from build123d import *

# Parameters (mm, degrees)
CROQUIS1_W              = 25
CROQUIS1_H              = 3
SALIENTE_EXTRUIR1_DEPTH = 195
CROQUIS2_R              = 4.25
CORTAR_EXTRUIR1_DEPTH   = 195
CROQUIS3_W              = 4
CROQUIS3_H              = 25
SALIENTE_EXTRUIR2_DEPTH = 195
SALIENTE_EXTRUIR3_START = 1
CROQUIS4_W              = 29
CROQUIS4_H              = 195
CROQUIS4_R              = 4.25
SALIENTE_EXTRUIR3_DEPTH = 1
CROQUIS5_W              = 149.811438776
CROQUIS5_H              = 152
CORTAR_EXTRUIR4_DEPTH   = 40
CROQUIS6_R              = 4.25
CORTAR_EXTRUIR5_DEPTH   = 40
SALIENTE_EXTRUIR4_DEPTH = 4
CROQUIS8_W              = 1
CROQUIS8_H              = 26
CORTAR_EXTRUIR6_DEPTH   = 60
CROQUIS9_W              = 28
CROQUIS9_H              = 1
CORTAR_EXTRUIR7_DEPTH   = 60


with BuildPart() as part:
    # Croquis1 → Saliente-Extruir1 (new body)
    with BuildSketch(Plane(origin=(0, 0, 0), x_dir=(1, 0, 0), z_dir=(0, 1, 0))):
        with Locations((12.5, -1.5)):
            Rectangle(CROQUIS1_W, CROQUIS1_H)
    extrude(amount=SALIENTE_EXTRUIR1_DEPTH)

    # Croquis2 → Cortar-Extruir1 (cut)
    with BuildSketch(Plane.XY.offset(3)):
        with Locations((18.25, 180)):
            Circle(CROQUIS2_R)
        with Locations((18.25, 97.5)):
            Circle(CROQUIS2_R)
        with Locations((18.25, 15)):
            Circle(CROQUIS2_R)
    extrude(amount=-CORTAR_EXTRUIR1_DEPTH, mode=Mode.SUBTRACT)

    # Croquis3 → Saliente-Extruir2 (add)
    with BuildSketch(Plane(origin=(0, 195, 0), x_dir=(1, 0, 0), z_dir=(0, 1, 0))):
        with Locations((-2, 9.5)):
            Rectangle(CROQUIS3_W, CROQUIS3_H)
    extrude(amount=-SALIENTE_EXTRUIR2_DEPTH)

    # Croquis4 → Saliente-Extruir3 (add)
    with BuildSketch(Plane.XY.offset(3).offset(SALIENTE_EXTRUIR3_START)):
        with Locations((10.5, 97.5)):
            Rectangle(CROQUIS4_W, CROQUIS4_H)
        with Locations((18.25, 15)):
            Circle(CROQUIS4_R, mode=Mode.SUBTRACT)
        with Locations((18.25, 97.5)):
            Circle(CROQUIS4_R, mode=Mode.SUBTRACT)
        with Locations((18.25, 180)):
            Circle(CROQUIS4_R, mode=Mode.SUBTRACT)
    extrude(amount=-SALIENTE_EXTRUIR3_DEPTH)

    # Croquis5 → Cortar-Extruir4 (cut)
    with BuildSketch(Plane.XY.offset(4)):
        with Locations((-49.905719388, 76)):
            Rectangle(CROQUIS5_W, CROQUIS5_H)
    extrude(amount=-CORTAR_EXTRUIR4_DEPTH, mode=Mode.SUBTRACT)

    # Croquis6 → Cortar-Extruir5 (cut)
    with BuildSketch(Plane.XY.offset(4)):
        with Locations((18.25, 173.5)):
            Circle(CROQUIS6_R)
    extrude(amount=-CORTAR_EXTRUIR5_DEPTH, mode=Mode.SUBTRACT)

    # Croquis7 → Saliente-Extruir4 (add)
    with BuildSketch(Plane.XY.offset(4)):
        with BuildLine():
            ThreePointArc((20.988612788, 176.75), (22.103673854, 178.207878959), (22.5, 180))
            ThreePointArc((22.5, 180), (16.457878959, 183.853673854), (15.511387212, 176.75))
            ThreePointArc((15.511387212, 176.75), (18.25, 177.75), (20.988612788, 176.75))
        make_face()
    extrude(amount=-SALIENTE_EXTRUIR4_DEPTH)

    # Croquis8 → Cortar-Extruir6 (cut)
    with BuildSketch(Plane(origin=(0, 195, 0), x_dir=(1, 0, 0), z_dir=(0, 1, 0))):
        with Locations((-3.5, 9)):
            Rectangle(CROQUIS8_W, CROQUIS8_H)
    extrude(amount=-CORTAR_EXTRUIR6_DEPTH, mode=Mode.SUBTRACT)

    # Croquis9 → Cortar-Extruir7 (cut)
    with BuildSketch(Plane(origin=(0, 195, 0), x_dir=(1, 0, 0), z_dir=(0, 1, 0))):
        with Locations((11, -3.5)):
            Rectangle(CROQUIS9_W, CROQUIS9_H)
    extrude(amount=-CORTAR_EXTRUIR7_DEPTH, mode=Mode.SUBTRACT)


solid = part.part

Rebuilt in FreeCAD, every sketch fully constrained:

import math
import FreeCAD as App
import Part
import Sketcher
Q = App.Units.Quantity


def add_polygon(sketch, points):
    """Adds a closed chain of lines whose ends are joined by coincident constraints."""
    first, n = sketch.GeometryCount, len(points)
    for a, b in zip(points, points[1:] + points[:1]):
        sketch.addGeometry(Part.LineSegment(App.Vector(*a, 0), App.Vector(*b, 0)), False)
    for i in range(n):
        sketch.addConstraint(Sketcher.Constraint("Coincident", first + i, 2, first + (i + 1) % n, 1))

doc = App.newDocument("Part")
body = doc.addObject("PartDesign::Body", "Body")

sketch1 = body.newObject("Sketcher::SketchObject", "Sketch")
sketch1.AttachmentSupport = (doc.getObject("XZ_Plane"), [""])
sketch1.MapMode = "FlatFace"
add_polygon(sketch1, [(0, 0), (0, 3), (25, 3), (25, 0)])
sketch1.addConstraint([
    Sketcher.Constraint("Vertical", 0),
    Sketcher.Constraint("Horizontal", 1),
    Sketcher.Constraint("Vertical", 2),
    Sketcher.Constraint("Horizontal", 3),
    Sketcher.Constraint("Coincident", 3, 2, -1, 1),
    Sketcher.Constraint("DistanceX", 1, 1, 1, 2, Q("25 mm")),
    Sketcher.Constraint("DistanceY", 0, 1, 0, 2, Q("3 mm")),
])
pad1 = body.newObject("PartDesign::Pad", "Pad")
pad1.Profile = sketch1
pad1.Length = 195
pad1.Reversed = True

sketch2 = body.newObject("Sketcher::SketchObject", "Sketch001")
sketch2.AttachmentSupport = (doc.getObject("XY_Plane"), [""])
sketch2.MapMode = "FlatFace"
sketch2.AttachmentOffset = App.Placement(App.Vector(0, 0, 3), App.Rotation())
sketch2.addGeometry([
    Part.Circle(App.Vector(18.2, 180, 0), App.Vector(0, 0, 1), 4.2),
    Part.Circle(App.Vector(18.2, 97.5, 0), App.Vector(0, 0, 1), 4.2),
    Part.Circle(App.Vector(18.2, 15, 0), App.Vector(0, 0, 1), 4.2),
], False)
sketch2.addConstraint([
    Sketcher.Constraint("Equal", 0, 1),
    Sketcher.Constraint("Equal", 1, 2),
    Sketcher.Constraint("Vertical", 0, 3, 1, 3),
    Sketcher.Constraint("Vertical", 1, 3, 2, 3),
    Sketcher.Constraint("Diameter", 0, Q("8.5 mm")),
    Sketcher.Constraint("DistanceY", -1, 1, 0, 3, Q("180 mm")),
    Sketcher.Constraint("DistanceY", -1, 1, 2, 3, Q("15 mm")),
    Sketcher.Constraint("DistanceY", -1, 1, 1, 3, Q("97.5 mm")),
    Sketcher.Constraint("DistanceX", -1, 1, 0, 3, Q("18.25 mm")),
])
pocket1 = body.newObject("PartDesign::Pocket", "Pocket")
pocket1.Profile = sketch2
pocket1.Length = 195

sketch3 = body.newObject("Sketcher::SketchObject", "Sketch002")
sketch3.AttachmentSupport = (doc.getObject("XZ_Plane"), [""])
sketch3.MapMode = "FlatFace"
sketch3.AttachmentOffset = App.Placement(App.Vector(0, 0, -195), App.Rotation())
add_polygon(sketch3, [(-4, -22), (-4, 3), (0, 3), (0, -22)])
sketch3.addConstraint([
    Sketcher.Constraint("Vertical", 0),
    Sketcher.Constraint("Horizontal", 1),
    Sketcher.Constraint("Vertical", 2),
    Sketcher.Constraint("Horizontal", 3),
    Sketcher.Constraint("PointOnObject", 1, 2, -2),
    Sketcher.Constraint("DistanceX", 1, 1, 1, 2, Q("4 mm")),
    Sketcher.Constraint("DistanceY", 0, 1, 0, 2, Q("25 mm")),
    Sketcher.Constraint("DistanceY", -1, 1, 0, 2, Q("3 mm")),
])
pad2 = body.newObject("PartDesign::Pad", "Pad001")
pad2.Profile = sketch3
pad2.Length = 195

sketch4 = body.newObject("Sketcher::SketchObject", "Sketch003")
sketch4.AttachmentSupport = (doc.getObject("XY_Plane"), [""])
sketch4.MapMode = "FlatFace"
sketch4.AttachmentOffset = App.Placement(App.Vector(0, 0, 4), App.Rotation())
add_polygon(sketch4, [(-4, 195), (-4, 0), (25, 0), (25, 195)])
sketch4.addGeometry(Part.Circle(App.Vector(18.2, 15, 0), App.Vector(0, 0, 1), 4.2), False)
sketch4.addGeometry(Part.Circle(App.Vector(18.2, 97.5, 0), App.Vector(0, 0, 1), 4.2), False)
sketch4.addGeometry(Part.Circle(App.Vector(18.2, 180, 0), App.Vector(0, 0, 1), 4.2), False)
sketch4.addConstraint([
    Sketcher.Constraint("Vertical", 0),
    Sketcher.Constraint("Horizontal", 1),
    Sketcher.Constraint("Vertical", 2),
    Sketcher.Constraint("Horizontal", 3),
    Sketcher.Constraint("Equal", 4, 5),
    Sketcher.Constraint("Equal", 5, 6),
    Sketcher.Constraint("PointOnObject", 0, 2, -1),
    Sketcher.Constraint("Vertical", 4, 3, 5, 3),
    Sketcher.Constraint("Vertical", 5, 3, 6, 3),
    Sketcher.Constraint("Diameter", 4, Q("8.5 mm")),
    Sketcher.Constraint("DistanceX", 1, 1, 1, 2, Q("29 mm")),
    Sketcher.Constraint("DistanceY", 0, 2, 0, 1, Q("195 mm")),
    Sketcher.Constraint("DistanceY", -1, 1, 4, 3, Q("15 mm")),
    Sketcher.Constraint("DistanceY", -1, 1, 6, 3, Q("180 mm")),
    Sketcher.Constraint("DistanceX", 0, 2, -1, 1, Q("4 mm")),
    Sketcher.Constraint("DistanceY", -1, 1, 5, 3, Q("97.5 mm")),
    Sketcher.Constraint("DistanceX", -1, 1, 4, 3, Q("18.25 mm")),
])
pad3 = body.newObject("PartDesign::Pad", "Pad002")
pad3.Profile = sketch4
pad3.Length = 1
pad3.Reversed = True

sketch5 = body.newObject("Sketcher::SketchObject", "Sketch004")
sketch5.AttachmentSupport = (doc.getObject("XY_Plane"), [""])
sketch5.MapMode = "FlatFace"
sketch5.AttachmentOffset = App.Placement(App.Vector(0, 0, 4), App.Rotation())
add_polygon(sketch5, [(-125, 152), (-125, 0), (25, 0), (25, 152)])
sketch5.addConstraint([
    Sketcher.Constraint("Vertical", 0),
    Sketcher.Constraint("Horizontal", 1),
    Sketcher.Constraint("Vertical", 2),
    Sketcher.Constraint("Horizontal", 3),
    Sketcher.Constraint("PointOnObject", 0, 2, -1),
    Sketcher.Constraint("DistanceY", 0, 2, 0, 1, Q("152 mm")),
    Sketcher.Constraint("DistanceX", -1, 1, 1, 2, Q("25 mm")),
    Sketcher.Constraint("DistanceX", 1, 1, 1, 2, Q("149.811439 mm")),
])
pocket2 = body.newObject("PartDesign::Pocket", "Pocket001")
pocket2.Profile = sketch5
pocket2.Length = 40

sketch6 = body.newObject("Sketcher::SketchObject", "Sketch005")
sketch6.AttachmentSupport = (doc.getObject("XY_Plane"), [""])
sketch6.MapMode = "FlatFace"
sketch6.AttachmentOffset = App.Placement(App.Vector(0, 0, 4), App.Rotation())
sketch6.addGeometry(Part.Circle(App.Vector(18.2, 173.5, 0), App.Vector(0, 0, 1), 4.2), False)
sketch6.addConstraint([
    Sketcher.Constraint("Diameter", 0, Q("8.5 mm")),
    Sketcher.Constraint("DistanceY", -1, 1, 0, 3, Q("173.5 mm")),
    Sketcher.Constraint("DistanceX", -1, 1, 0, 3, Q("18.25 mm")),
])
pocket3 = body.newObject("PartDesign::Pocket", "Pocket002")
pocket3.Profile = sketch6
pocket3.Length = 40

sketch7 = body.newObject("Sketcher::SketchObject", "Sketch006")
sketch7.AttachmentSupport = (doc.getObject("XY_Plane"), [""])
sketch7.MapMode = "FlatFace"
sketch7.AttachmentOffset = App.Placement(App.Vector(0, 0, 4), App.Rotation())
sketch7.addGeometry([
    Part.ArcOfCircle(Part.Circle(App.Vector(18.2, 180, 0), App.Vector(0, 0, 1), 4.3), math.radians(-50), math.radians(0)),
    Part.ArcOfCircle(Part.Circle(App.Vector(18.2, 180, 0), App.Vector(0, 0, 1), 4.2), math.radians(0), math.radians(230)),
    Part.ArcOfCircle(Part.Circle(App.Vector(18.2, 173.5, 0), App.Vector(0, 0, 1), 4.3), math.radians(50), math.radians(130)),
], False)
sketch7.addConstraint([
    Sketcher.Constraint("Tangent", 0, 2, 1, 1),
    Sketcher.Constraint("Coincident", 1, 2, 2, 2),
    Sketcher.Constraint("Coincident", 2, 1, 0, 1),
    Sketcher.Constraint("Equal", 0, 1),
    Sketcher.Constraint("Equal", 1, 2),
    Sketcher.Constraint("Horizontal", 1, 3, 0, 2),
    Sketcher.Constraint("Horizontal", 1, 2, 2, 1),
    Sketcher.Constraint("Radius", 0, Q("4.25 mm")),
    Sketcher.Constraint("DistanceY", -1, 1, 0, 3, Q("180 mm")),
    Sketcher.Constraint("DistanceY", -1, 1, 2, 3, Q("173.5 mm")),
    Sketcher.Constraint("DistanceX", -1, 1, 0, 2, Q("22.5 mm")),
])
pad4 = body.newObject("PartDesign::Pad", "Pad003")
pad4.Profile = sketch7
pad4.Length = 4
pad4.Reversed = True

sketch8 = body.newObject("Sketcher::SketchObject", "Sketch007")
sketch8.AttachmentSupport = (doc.getObject("XZ_Plane"), [""])
sketch8.MapMode = "FlatFace"
sketch8.AttachmentOffset = App.Placement(App.Vector(0, 0, -195), App.Rotation())
add_polygon(sketch8, [(-4, -22), (-4, 4), (-3, 4), (-3, -22)])
sketch8.addConstraint([
    Sketcher.Constraint("Vertical", 0),
    Sketcher.Constraint("Horizontal", 1),
    Sketcher.Constraint("Vertical", 2),
    Sketcher.Constraint("Horizontal", 3),
    Sketcher.Constraint("DistanceX", 1, 1, 1, 2, Q("1 mm")),
    Sketcher.Constraint("DistanceY", 0, 1, 0, 2, Q("26 mm")),
    Sketcher.Constraint("DistanceX", 0, 2, -1, 1, Q("4 mm")),
    Sketcher.Constraint("DistanceY", -1, 1, 0, 2, Q("4 mm")),
])
pocket4 = body.newObject("PartDesign::Pocket", "Pocket003")
pocket4.Profile = sketch8
pocket4.Length = 60
pocket4.Reversed = True

sketch9 = body.newObject("Sketcher::SketchObject", "Sketch008")
sketch9.AttachmentSupport = (doc.getObject("XZ_Plane"), [""])
sketch9.MapMode = "FlatFace"
sketch9.AttachmentOffset = App.Placement(App.Vector(0, 0, -195), App.Rotation())
add_polygon(sketch9, [(-3, 3), (-3, 4), (25, 4), (25, 3)])
sketch9.addConstraint([
    Sketcher.Constraint("Vertical", 0),
    Sketcher.Constraint("Horizontal", 1),
    Sketcher.Constraint("Vertical", 2),
    Sketcher.Constraint("Horizontal", 3),
    Sketcher.Constraint("DistanceX", 1, 1, 1, 2, Q("28 mm")),
    Sketcher.Constraint("DistanceY", 0, 1, 0, 2, Q("1 mm")),
    Sketcher.Constraint("DistanceX", 0, 2, -1, 1, Q("3 mm")),
    Sketcher.Constraint("DistanceY", -1, 1, 0, 2, Q("4 mm")),
])
pocket5 = body.newObject("PartDesign::Pocket", "Pocket004")
pocket5.Profile = sketch9
pocket5.Length = 60
pocket5.Reversed = True

doc.recompute()
